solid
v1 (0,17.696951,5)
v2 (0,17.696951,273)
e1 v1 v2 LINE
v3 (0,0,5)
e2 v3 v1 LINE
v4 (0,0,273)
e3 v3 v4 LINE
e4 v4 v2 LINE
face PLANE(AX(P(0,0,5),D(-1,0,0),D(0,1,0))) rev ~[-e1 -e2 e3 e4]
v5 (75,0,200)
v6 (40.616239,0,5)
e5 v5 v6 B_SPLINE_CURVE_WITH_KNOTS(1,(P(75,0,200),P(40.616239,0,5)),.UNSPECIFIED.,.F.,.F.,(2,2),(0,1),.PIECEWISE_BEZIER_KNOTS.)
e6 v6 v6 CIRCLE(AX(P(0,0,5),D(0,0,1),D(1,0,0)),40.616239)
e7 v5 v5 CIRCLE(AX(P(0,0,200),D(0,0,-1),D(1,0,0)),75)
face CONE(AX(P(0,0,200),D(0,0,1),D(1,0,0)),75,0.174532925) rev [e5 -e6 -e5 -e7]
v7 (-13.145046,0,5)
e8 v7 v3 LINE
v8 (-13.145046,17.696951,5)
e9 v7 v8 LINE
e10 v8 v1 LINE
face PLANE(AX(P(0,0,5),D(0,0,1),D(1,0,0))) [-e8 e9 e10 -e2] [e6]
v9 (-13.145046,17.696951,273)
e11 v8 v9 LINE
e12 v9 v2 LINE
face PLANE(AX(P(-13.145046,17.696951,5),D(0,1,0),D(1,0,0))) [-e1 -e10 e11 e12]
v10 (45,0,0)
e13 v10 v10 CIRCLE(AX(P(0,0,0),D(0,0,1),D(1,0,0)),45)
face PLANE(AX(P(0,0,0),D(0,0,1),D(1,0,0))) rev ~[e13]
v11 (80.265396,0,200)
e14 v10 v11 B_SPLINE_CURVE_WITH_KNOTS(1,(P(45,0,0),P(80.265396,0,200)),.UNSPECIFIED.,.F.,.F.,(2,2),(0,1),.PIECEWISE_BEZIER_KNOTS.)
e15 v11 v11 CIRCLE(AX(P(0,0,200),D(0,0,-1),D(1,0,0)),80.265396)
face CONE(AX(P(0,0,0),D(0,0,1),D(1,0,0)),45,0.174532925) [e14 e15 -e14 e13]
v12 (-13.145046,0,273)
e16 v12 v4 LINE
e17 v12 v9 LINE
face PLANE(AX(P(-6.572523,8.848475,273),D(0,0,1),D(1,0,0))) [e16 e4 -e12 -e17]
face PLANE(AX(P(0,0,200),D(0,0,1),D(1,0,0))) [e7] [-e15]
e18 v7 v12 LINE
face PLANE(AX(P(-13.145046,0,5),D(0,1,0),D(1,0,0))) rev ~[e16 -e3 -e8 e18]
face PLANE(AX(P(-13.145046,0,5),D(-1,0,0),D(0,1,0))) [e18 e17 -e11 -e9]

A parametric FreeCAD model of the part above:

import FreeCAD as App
import Part
import Sketcher
from FreeCAD import Vector
Q = App.Units.Quantity


def add_polygon(sketch, points):
    """Adds a closed chain of lines whose ends are joined by coincident constraints."""
    first, n = sketch.GeometryCount, len(points)
    for a, b in zip(points, points[1:] + points[:1]):
        sketch.addGeometry(Part.LineSegment(App.Vector(*a, 0), App.Vector(*b, 0)), False)
    for i in range(n):
        sketch.addConstraint(Sketcher.Constraint("Coincident", first + i, 2, first + (i + 1) % n, 1))

doc = App.newDocument("Part")
params = doc.addObject("Spreadsheet::Sheet", "Params")
for row, (alias, value) in enumerate([
    ("sketch1_diameter", "90 mm"),
    ("pad1_length", "200 mm"),
    ("pad1_taper", "10 deg"),
    ("sketch2_diameter", "150 mm"),
    ("pocket1_length", "195 mm"),
    ("pocket1_taper", "-10 deg"),
    ("pad2_length", "268 mm"),
], start=1):
    params.set(f"A{row}", alias)
    params.set(f"B{row}", "=" + value)
    params.setAlias(f"B{row}", alias)

body = doc.addObject("PartDesign::Body", "Body")

# Sketch on XY plane
sketch1 = doc.addObject("Sketcher::SketchObject", "Sketch")
body.addObject(sketch1)
sketch1.AttachmentSupport = (doc.XY_Plane, [""])
sketch1.MapMode = "FlatFace"
sketch1.addGeometry(Part.Circle(Vector(0, 0, 0), Vector(0, 0, 1), 45), False)
sketch1.addConstraint([
    Sketcher.Constraint("Coincident", 0, 3, -1, 1),
    Sketcher.Constraint("Diameter", 0, Q("90 mm")),
])
sketch1.setExpression("Constraints[1]", "Params.sketch1_diameter")
pad1 = doc.addObject("PartDesign::Pad", "Pad")
body.addObject(pad1)
pad1.Profile = sketch1
pad1.setExpression("Length", "Params.pad1_length")
pad1.setExpression("TaperAngle", "Params.pad1_taper")

# Sketch on XY plane
sketch2 = doc.addObject("Sketcher::SketchObject", "Sketch001")
body.addObject(sketch2)
sketch2.AttachmentSupport = (doc.XY_Plane, [""])
sketch2.MapMode = "FlatFace"
sketch2.AttachmentOffset = App.Placement(Vector(0, 0, 200), App.Rotation())
sketch2.addGeometry(Part.Circle(Vector(0, 0, 0), Vector(0, 0, 1), 75), False)
sketch2.addConstraint([
    Sketcher.Constraint("Coincident", 0, 3, -1, 1),
    Sketcher.Constraint("Diameter", 0, Q("150 mm")),
])
sketch2.setExpression("Constraints[1]", "Params.sketch2_diameter")
pocket1 = doc.addObject("PartDesign::Pocket", "Pocket")
body.addObject(pocket1)
pocket1.Profile = sketch2
pocket1.setExpression("Length", "Params.pocket1_length")
pocket1.setExpression("TaperAngle", "Params.pocket1_taper")

# Sketch on XY plane
sketch3 = doc.addObject("Sketcher::SketchObject", "Sketch002")
body.addObject(sketch3)
sketch3.AttachmentSupport = (doc.XY_Plane, [""])
sketch3.MapMode = "FlatFace"
sketch3.AttachmentOffset = App.Placement(Vector(0, 0, 5), App.Rotation())
add_polygon(sketch3, [(-13, 18), (-13, 0), (0, 0), (0, 18)])  # lines 0-3
sketch3.addConstraint([
    Sketcher.Constraint("Vertical", 0),
    Sketcher.Constraint("Horizontal", 1),
    Sketcher.Constraint("Vertical", 2),
    Sketcher.Constraint("Horizontal", 3),
    Sketcher.Constraint("Coincident", 1, 2, -1, 1),
    Sketcher.Constraint("DistanceY", 0, 2, 0, 1, Q("17.696951 mm")),
    Sketcher.Constraint("DistanceX", 1, 1, 1, 2, Q("13.145046 mm")),
])
pad2 = doc.addObject("PartDesign::Pad", "Pad001")
body.addObject(pad2)
pad2.Profile = sketch3
pad2.setExpression("Length", "Params.pad2_length")

doc.recompute()
